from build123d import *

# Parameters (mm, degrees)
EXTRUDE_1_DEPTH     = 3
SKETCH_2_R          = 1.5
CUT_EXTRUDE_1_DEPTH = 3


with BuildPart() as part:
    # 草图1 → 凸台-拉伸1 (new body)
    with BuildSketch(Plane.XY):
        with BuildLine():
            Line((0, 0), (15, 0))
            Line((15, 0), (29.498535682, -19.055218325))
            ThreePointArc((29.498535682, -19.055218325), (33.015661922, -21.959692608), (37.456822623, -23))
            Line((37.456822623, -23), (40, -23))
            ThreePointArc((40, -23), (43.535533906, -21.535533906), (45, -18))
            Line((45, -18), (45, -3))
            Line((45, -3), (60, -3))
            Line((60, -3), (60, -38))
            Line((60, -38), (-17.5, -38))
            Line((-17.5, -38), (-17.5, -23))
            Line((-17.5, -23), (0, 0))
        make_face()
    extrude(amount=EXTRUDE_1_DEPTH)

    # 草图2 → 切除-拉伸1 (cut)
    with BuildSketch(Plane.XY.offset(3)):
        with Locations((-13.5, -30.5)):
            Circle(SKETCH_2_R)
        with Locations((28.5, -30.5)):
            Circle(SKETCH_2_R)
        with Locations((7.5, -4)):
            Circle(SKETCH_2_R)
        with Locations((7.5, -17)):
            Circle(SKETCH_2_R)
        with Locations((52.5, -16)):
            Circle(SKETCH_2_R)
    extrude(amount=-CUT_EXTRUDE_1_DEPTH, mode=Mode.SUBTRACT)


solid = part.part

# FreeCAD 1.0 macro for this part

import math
import FreeCAD as App
import Part
import Sketcher
Q = App.Units.Quantity

doc = App.newDocument("Part")
body = doc.addObject("PartDesign::Body", "Body")

# Sketch on XY plane
sketch1 = doc.addObject("Sketcher::SketchObject", "Sketch")
body.addObject(sketch1)
sketch1.AttachmentSupport = (doc.XY_Plane, [""])
sketch1.MapMode = "FlatFace"
sketch1.addGeometry(Part.LineSegment(App.Vector(15, 0, 0), App.Vector(0, 0, 0)), False)
sketch1.addGeometry(Part.LineSegment(App.Vector(0, 0, 0), App.Vector(-17.5, -23, 0)), False)
sketch1.addGeometry(Part.LineSegment(App.Vector(-17.5, -23, 0), App.Vector(-17.5, -38, 0)), False)
sketch1.addGeometry(Part.LineSegment(App.Vector(-17.5, -38, 0), App.Vector(60, -38, 0)), False)
sketch1.addGeometry(Part.LineSegment(App.Vector(60, -38, 0), App.Vector(60, -3, 0)), False)
sketch1.addGeometry(Part.LineSegment(App.Vector(60, -3, 0), App.Vector(45, -3, 0)), False)
sketch1.addGeometry(Part.LineSegment(App.Vector(45, -3, 0), App.Vector(45, -18, 0)), False)
sketch1.addGeometry(Part.ArcOfCircle(Part.Circle(App.Vector(40, -18, 0), App.Vector(0, 0, 1), 5), math.radians(-90), math.radians(0)), False)
sketch1.addGeometry(Part.LineSegment(App.Vector(40, -23, 0), App.Vector(37.5, -23, 0)), False)
sketch1.addGeometry(Part.ArcOfCircle(Part.Circle(App.Vector(37.5, -13, 0), App.Vector(0, 0, 1), 10), math.radians(-143), math.radians(-90)), False)
sketch1.addGeometry(Part.LineSegment(App.Vector(29.5, -19.1, 0), App.Vector(15, 0, 0)), False)
sketch1.addConstraint(Sketcher.Constraint("Coincident", 0, 2, 1, 1))
sketch1.addConstraint(Sketcher.Constraint("Coincident", 1, 2, 2, 1))
sketch1.addConstraint(Sketcher.Constraint("Coincident", 2, 2, 3, 1))
sketch1.addConstraint(Sketcher.Constraint("Coincident", 3, 2, 4, 1))
sketch1.addConstraint(Sketcher.Constraint("Coincident", 4, 2, 5, 1))
sketch1.addConstraint(Sketcher.Constraint("Coincident", 5, 2, 6, 1))
sketch1.addConstraint(Sketcher.Constraint("Tangent", 6, 2, 7, 2))
sketch1.addConstraint(Sketcher.Constraint("Tangent", 7, 1, 8, 1))
sketch1.addConstraint(Sketcher.Constraint("Tangent", 8, 2, 9, 2))
sketch1.addConstraint(Sketcher.Constraint("Tangent", 9, 1, 10, 1))
sketch1.addConstraint(Sketcher.Constraint("Coincident", 10, 2, 0, 1))
sketch1.addConstraint(Sketcher.Constraint("Horizontal", 0))
sketch1.addConstraint(Sketcher.Constraint("Vertical", 2))
sketch1.addConstraint(Sketcher.Constraint("Horizontal", 3))
sketch1.addConstraint(Sketcher.Constraint("Vertical", 4))
sketch1.addConstraint(Sketcher.Constraint("Horizontal", 5))
sketch1.addConstraint(Sketcher.Constraint("Vertical", 6))
sketch1.addConstraint(Sketcher.Constraint("Horizontal", 8))
sketch1.addConstraint(Sketcher.Constraint("Coincident", 0, 2, -1, 1))
sketch1.addConstraint(Sketcher.Constraint("Horizontal", 1, 2, 7, 1))
sketch1.addConstraint(Sketcher.Constraint("Equal", 0, 5))
sketch1.addConstraint(Sketcher.Constraint("Equal", 5, 2))
sketch1.addConstraint(Sketcher.Constraint("Equal", 2, 6))
sketch1.addConstraint(Sketcher.Constraint("Radius", 7, Q("5 mm")))
sketch1.addConstraint(Sketcher.Constraint("Radius", 9, Q("10 mm")))
sketch1.addConstraint(Sketcher.Constraint("DistanceX", 0, 2, 0, 1, Q("15 mm")))
sketch1.addConstraint(Sketcher.Constraint("DistanceX", 3, 1, 3, 2, Q("77.5 mm")))
sketch1.addConstraint(Sketcher.Constraint("DistanceX", -1, 1, 7, 3, Q("40 mm")))
sketch1.addConstraint(Sketcher.Constraint("DistanceY", 7, 3, -1, 1, Q("18 mm")))
sketch1.addConstraint(Sketcher.Constraint("Distance", 10, Q("23.943869 mm")))
pad1 = doc.addObject("PartDesign::Pad", "Pad")
body.addObject(pad1)
pad1.Profile = sketch1
pad1.Length = 3

# Sketch on XY plane
sketch2 = doc.addObject("Sketcher::SketchObject", "Sketch001")
body.addObject(sketch2)
sketch2.AttachmentSupport = (doc.XY_Plane, [""])
sketch2.MapMode = "FlatFace"
sketch2.AttachmentOffset = App.Placement(App.Vector(0, 0, 3), App.Rotation())
sketch2.addGeometry(Part.Circle(App.Vector(-13.5, -30.5, 0), App.Vector(0, 0, 1), 1.5), False)
sketch2.addGeometry(Part.Circle(App.Vector(28.5, -30.5, 0), App.Vector(0, 0, 1), 1.5), False)
sketch2.addGeometry(Part.Circle(App.Vector(7.5, -4, 0), App.Vector(0, 0, 1), 1.5), False)
sketch2.addGeometry(Part.Circle(App.Vector(7.5, -17, 0), App.Vector(0, 0, 1), 1.5), False)
sketch2.addGeometry(Part.Circle(App.Vector(52.5, -16, 0), App.Vector(0, 0, 1), 1.5), False)
sketch2.addConstraint(Sketcher.Constraint("Equal", 0, 1))
sketch2.addConstraint(Sketcher.Constraint("Equal", 1, 2))
sketch2.addConstraint(Sketcher.Constraint("Equal", 2, 3))
sketch2.addConstraint(Sketcher.Constraint("Equal", 3, 4))
sketch2.addConstraint(Sketcher.Constraint("Horizontal", 0, 3, 1, 3))
sketch2.addConstraint(Sketcher.Constraint("Vertical", 2, 3, 3, 3))
sketch2.addConstraint(Sketcher.Constraint("Diameter", 0, Q("3 mm")))
sketch2.addConstraint(Sketcher.Constraint("DistanceY", 2, 3, -1, 1, Q("4 mm")))
sketch2.addConstraint(Sketcher.Constraint("DistanceY", 3, 3, -1, 1, Q("17 mm")))
sketch2.addConstraint(Sketcher.Constraint("DistanceY", 4, 3, -1, 1, Q("16 mm")))
sketch2.addConstraint(Sketcher.Constraint("DistanceX", 0, 3, 1, 3, Q("42 mm")))
sketch2.addConstraint(Sketcher.Constraint("DistanceX", 0, 3, 2, 3, Q("21 mm")))
sketch2.addConstraint(Sketcher.Constraint("DistanceX", 1, 3, 4, 3, Q("24 mm")))
sketch2.addConstraint(Sketcher.Constraint("DistanceX", 0, 3, -1, 1, Q("13.5 mm")))
sketch2.addConstraint(Sketcher.Constraint("DistanceY", 0, 3, -1, 1, Q("30.5 mm")))
pocket1 = doc.addObject("PartDesign::Pocket", "Pocket")
body.addObject(pocket1)
pocket1.Profile = sketch2
pocket1.Length = 3

doc.recompute()
